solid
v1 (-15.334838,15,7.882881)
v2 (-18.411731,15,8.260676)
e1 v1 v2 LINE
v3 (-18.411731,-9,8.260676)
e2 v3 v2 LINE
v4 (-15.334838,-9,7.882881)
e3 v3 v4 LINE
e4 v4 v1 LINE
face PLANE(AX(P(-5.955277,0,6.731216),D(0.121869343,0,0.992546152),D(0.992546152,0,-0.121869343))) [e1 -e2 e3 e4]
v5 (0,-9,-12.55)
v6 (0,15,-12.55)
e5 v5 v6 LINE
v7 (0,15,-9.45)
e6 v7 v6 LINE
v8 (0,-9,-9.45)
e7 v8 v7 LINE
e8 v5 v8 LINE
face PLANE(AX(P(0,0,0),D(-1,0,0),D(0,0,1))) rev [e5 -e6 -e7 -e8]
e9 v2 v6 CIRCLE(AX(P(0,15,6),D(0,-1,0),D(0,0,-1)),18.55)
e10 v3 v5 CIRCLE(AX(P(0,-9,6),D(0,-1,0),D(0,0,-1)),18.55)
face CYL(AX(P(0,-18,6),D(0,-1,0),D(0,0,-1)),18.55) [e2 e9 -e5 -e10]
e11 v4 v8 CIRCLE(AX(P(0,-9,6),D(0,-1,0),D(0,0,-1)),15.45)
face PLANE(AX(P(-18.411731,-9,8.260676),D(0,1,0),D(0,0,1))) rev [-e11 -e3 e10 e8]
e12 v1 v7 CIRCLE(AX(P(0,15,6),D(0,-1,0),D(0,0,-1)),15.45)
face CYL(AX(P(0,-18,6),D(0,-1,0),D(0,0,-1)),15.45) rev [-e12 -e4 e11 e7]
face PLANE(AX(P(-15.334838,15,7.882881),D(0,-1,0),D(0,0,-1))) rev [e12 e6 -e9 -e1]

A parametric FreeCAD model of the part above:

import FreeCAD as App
import Part
import Sketcher
Q = App.Units.Quantity


def add_polygon(sketch, points):
    """Adds a closed chain of lines whose ends are joined by coincident constraints."""
    first, n = sketch.GeometryCount, len(points)
    for a, b in zip(points, points[1:] + points[:1]):
        sketch.addGeometry(Part.LineSegment(App.Vector(*a, 0), App.Vector(*b, 0)), False)
    for i in range(n):
        sketch.addConstraint(Sketcher.Constraint("Coincident", first + i, 2, first + (i + 1) % n, 1))

doc = App.newDocument("Part")
body = doc.addObject("PartDesign::Body", "Body")

# Sketch on YZ plane
sketch1 = doc.addObject("Sketcher::SketchObject", "Sketch")
body.addObject(sketch1)
sketch1.AttachmentSupport = (doc.YZ_Plane, [""])
sketch1.MapMode = "FlatFace"
add_polygon(sketch1, [(15, -9.4), (-9, -9.4), (-9, -12.6), (15, -12.6)])  # lines 0-3
sketch1.addGeometry(Part.LineSegment(App.Vector(-9, 6, 0), App.Vector(15, 6, 0)), True)  # axis
sketch1.addConstraint(Sketcher.Constraint("Horizontal", 0))
sketch1.addConstraint(Sketcher.Constraint("Vertical", 1))
sketch1.addConstraint(Sketcher.Constraint("Horizontal", 2))
sketch1.addConstraint(Sketcher.Constraint("Vertical", 3))
sketch1.addConstraint(Sketcher.Constraint("Horizontal", 4))
sketch1.addConstraint(Sketcher.Constraint("Vertical", 1, 2, 4, 1))
sketch1.addConstraint(Sketcher.Constraint("Vertical", 3, 2, 4, 2))
sketch1.addConstraint(Sketcher.Constraint("DistanceX", 0, 2, 0, 1, Q("24 mm")))
sketch1.addConstraint(Sketcher.Constraint("DistanceY", 1, 2, 1, 1, Q("3.1 mm")))
sketch1.addConstraint(Sketcher.Constraint("DistanceX", 0, 2, -1, 1, Q("9 mm")))
sketch1.addConstraint(Sketcher.Constraint("DistanceY", -1, 1, 4, 1, Q("6 mm")))
sketch1.addConstraint(Sketcher.Constraint("DistanceY", 0, 2, -1, 1, Q("9.45 mm")))
revolution = doc.addObject("PartDesign::Revolution", "Revolution")
body.addObject(revolution)
revolution.Profile = sketch1
revolution.ReferenceAxis = (sketch1, ["Axis0"])
revolution.Angle = 97

doc.recompute()
